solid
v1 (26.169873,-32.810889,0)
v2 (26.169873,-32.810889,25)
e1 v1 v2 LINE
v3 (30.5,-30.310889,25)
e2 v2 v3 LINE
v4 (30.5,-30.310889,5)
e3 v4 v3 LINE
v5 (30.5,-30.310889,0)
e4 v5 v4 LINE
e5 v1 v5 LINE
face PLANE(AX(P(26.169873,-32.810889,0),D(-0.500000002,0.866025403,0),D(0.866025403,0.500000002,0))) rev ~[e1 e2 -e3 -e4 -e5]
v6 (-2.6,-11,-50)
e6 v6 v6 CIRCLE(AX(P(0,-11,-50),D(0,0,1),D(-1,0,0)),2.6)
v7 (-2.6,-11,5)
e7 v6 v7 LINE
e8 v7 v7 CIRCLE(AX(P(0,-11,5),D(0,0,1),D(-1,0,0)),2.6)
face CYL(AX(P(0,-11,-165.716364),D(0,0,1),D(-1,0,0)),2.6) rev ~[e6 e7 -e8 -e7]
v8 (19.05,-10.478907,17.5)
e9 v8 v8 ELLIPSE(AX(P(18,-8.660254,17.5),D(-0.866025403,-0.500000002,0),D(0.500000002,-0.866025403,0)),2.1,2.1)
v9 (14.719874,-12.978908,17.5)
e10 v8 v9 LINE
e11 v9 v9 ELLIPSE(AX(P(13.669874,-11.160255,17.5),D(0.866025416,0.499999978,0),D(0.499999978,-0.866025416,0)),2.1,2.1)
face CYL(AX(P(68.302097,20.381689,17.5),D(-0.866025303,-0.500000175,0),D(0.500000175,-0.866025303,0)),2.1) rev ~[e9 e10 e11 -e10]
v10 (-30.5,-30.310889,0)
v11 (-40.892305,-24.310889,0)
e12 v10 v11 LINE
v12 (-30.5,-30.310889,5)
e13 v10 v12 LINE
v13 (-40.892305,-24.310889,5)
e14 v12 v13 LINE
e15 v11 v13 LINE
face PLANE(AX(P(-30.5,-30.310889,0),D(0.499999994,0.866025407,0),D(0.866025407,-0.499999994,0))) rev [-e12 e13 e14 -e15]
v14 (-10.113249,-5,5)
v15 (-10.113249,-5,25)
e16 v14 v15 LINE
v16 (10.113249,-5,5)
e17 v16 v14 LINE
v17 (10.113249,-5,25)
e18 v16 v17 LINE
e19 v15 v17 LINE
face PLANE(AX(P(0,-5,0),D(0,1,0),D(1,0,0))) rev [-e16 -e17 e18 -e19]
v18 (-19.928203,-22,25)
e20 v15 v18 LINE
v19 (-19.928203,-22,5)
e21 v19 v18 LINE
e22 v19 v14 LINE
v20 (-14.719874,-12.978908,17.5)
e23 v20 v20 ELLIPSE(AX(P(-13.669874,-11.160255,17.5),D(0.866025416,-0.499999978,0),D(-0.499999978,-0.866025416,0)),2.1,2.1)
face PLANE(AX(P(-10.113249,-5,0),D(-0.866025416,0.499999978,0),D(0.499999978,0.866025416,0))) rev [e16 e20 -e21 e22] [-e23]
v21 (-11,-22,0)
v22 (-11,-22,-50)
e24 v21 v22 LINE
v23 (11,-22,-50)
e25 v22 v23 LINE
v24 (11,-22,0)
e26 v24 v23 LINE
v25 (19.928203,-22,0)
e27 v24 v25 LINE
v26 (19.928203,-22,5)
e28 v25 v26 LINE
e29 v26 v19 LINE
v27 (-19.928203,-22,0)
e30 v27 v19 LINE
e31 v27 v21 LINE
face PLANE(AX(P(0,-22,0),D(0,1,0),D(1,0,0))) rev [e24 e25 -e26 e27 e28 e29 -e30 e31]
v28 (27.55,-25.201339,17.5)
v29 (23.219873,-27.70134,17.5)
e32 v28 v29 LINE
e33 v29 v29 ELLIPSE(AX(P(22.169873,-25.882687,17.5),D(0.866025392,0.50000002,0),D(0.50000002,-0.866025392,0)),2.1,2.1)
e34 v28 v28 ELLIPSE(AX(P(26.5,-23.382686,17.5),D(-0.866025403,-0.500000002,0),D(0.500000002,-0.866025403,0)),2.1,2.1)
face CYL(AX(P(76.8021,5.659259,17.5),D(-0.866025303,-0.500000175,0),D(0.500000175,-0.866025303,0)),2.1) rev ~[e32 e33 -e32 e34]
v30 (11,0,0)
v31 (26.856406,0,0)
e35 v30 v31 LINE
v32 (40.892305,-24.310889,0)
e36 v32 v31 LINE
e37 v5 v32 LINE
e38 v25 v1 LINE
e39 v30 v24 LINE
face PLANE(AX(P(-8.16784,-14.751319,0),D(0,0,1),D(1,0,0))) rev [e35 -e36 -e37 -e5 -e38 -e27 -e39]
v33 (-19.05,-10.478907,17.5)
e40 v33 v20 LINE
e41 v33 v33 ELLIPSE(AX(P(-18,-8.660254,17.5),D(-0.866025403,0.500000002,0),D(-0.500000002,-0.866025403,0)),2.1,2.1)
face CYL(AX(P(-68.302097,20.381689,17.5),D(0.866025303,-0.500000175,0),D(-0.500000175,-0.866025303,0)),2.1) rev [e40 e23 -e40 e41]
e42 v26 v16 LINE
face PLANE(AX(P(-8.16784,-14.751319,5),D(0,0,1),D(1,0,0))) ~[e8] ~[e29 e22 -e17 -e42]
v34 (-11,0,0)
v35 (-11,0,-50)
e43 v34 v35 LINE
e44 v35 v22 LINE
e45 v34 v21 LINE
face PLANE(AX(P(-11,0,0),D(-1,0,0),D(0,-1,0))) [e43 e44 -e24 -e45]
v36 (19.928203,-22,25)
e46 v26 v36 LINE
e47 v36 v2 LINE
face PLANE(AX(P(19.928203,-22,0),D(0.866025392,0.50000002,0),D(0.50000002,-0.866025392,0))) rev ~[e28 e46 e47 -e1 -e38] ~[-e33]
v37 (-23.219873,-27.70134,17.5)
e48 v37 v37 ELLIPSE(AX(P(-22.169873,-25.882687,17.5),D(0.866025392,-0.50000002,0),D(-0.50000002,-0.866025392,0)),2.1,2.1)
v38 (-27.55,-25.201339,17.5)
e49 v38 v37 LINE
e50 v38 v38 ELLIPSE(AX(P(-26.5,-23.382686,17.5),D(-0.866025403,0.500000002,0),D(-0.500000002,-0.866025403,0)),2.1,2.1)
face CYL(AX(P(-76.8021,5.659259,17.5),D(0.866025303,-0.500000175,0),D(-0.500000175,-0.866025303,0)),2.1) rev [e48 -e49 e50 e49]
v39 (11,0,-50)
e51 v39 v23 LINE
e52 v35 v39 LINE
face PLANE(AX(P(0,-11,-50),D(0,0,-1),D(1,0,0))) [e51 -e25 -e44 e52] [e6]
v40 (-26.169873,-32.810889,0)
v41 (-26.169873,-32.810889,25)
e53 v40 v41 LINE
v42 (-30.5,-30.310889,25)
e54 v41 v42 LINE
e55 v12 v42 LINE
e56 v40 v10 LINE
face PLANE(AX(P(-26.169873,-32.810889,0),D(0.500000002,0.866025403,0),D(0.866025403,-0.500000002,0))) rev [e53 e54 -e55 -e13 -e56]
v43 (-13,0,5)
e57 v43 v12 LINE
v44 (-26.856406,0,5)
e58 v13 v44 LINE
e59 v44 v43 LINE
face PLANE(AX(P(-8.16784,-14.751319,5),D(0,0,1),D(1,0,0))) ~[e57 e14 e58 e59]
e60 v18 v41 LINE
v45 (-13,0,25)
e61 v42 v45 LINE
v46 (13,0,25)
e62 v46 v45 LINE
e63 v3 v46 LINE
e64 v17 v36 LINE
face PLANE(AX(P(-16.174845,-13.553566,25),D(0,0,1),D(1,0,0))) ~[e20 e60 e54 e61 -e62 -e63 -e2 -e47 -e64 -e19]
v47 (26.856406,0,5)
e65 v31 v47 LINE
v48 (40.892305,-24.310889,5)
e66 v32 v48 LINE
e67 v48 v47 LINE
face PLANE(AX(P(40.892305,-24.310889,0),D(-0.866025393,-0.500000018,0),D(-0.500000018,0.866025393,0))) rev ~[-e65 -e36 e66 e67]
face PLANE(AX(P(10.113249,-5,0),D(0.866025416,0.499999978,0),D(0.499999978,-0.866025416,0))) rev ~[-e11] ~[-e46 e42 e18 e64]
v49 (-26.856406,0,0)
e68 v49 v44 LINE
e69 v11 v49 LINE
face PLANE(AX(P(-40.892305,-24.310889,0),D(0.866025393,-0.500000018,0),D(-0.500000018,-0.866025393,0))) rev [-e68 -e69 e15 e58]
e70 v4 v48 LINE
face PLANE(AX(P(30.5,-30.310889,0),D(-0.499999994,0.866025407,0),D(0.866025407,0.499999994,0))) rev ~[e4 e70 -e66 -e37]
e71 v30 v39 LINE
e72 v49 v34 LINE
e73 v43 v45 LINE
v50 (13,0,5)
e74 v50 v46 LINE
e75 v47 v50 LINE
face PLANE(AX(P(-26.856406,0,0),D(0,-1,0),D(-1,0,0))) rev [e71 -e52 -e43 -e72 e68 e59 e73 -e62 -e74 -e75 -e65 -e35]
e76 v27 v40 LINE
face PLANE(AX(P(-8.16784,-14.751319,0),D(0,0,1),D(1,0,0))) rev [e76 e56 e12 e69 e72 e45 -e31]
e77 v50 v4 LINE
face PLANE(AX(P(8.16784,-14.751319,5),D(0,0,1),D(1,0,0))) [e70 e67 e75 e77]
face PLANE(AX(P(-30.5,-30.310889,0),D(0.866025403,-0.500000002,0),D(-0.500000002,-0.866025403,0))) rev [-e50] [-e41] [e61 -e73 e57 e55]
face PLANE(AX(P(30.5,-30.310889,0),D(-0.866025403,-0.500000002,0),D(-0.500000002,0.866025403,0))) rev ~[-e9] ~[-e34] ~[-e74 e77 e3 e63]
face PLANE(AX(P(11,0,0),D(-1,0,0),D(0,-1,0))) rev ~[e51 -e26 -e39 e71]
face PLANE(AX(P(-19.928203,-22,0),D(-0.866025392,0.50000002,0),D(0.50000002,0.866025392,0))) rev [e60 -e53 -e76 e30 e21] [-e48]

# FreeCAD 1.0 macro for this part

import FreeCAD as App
import Part
import Sketcher
Q = App.Units.Quantity


def add_polygon(sketch, points):
    """Adds a closed chain of lines whose ends are joined by coincident constraints."""
    first, n = sketch.GeometryCount, len(points)
    for a, b in zip(points, points[1:] + points[:1]):
        sketch.addGeometry(Part.LineSegment(App.Vector(*a, 0), App.Vector(*b, 0)), False)
    for i in range(n):
        sketch.addConstraint(Sketcher.Constraint("Coincident", first + i, 2, first + (i + 1) % n, 1))

doc = App.newDocument("Part")
body = doc.addObject("PartDesign::Body", "Body")

sketch1 = doc.addObject("Sketcher::SketchObject", "Sketch")
body.addObject(sketch1)
sketch1.AttachmentSupport = (doc.XY_Plane, [""])
sketch1.MapMode = "FlatFace"
add_polygon(sketch1, [(0, -22), (19.9, -22), (26.2, -32.8), (30.5, -30.3), (40.9, -24.3), (26.9, 0), (0, 0)])
sketch1.addConstraint(Sketcher.Constraint("Horizontal", 0))
sketch1.addConstraint(Sketcher.Constraint("Horizontal", 5))
sketch1.addConstraint(Sketcher.Constraint("Vertical", 6))
sketch1.addConstraint(Sketcher.Constraint("Coincident", 5, 2, -1, 1))
sketch1.addConstraint(Sketcher.Constraint("Perpendicular", 1, 2))
sketch1.addConstraint(Sketcher.Constraint("Parallel", 2, 3))
sketch1.addConstraint(Sketcher.Constraint("Perpendicular", 3, 4))
sketch1.addConstraint(Sketcher.Constraint("DistanceY", 6, 2, 6, 1, Q("22 mm")))
sketch1.addConstraint(Sketcher.Constraint("Angle", 1, Q("-59.999999 deg")))
sketch1.addConstraint(Sketcher.Constraint("Distance", 2, Q("5 mm")))
sketch1.addConstraint(Sketcher.Constraint("Distance", 3, Q("12 mm")))
sketch1.addConstraint(Sketcher.Constraint("DistanceX", -1, 1, 2, 2, Q("30.5 mm")))
sketch1.addConstraint(Sketcher.Constraint("DistanceX", 4, 2, 3, 2, Q("14.035899 mm")))
pad1 = doc.addObject("PartDesign::Pad", "Pad")
body.addObject(pad1)
pad1.Profile = sketch1
pad1.Length = 5

sketch2 = doc.addObject("Sketcher::SketchObject", "Sketch001")
body.addObject(sketch2)
sketch2.AttachmentSupport = (doc.XY_Plane, [""])
sketch2.MapMode = "FlatFace"
add_polygon(sketch2, [(13, 0), (0, 0), (0, -5), (10.1, -5), (19.9, -22), (26.2, -32.8), (30.5, -30.3)])
sketch2.addConstraint(Sketcher.Constraint("Horizontal", 0))
sketch2.addConstraint(Sketcher.Constraint("Vertical", 1))
sketch2.addConstraint(Sketcher.Constraint("Horizontal", 2))
sketch2.addConstraint(Sketcher.Constraint("Coincident", 0, 2, -1, 1))
sketch2.addConstraint(Sketcher.Constraint("Parallel", 3, 4))
sketch2.addConstraint(Sketcher.Constraint("Perpendicular", 4, 5))
sketch2.addConstraint(Sketcher.Constraint("Perpendicular", 5, 6))
sketch2.addConstraint(Sketcher.Constraint("DistanceX", 0, 2, 0, 1, Q("13 mm")))
sketch2.addConstraint(Sketcher.Constraint("DistanceY", 1, 2, 1, 1, Q("5 mm")))
sketch2.addConstraint(Sketcher.Constraint("Angle", 3, Q("-60.000001 deg")))
sketch2.addConstraint(Sketcher.Constraint("Distance", 5, Q("5 mm")))
sketch2.addConstraint(Sketcher.Constraint("Distance", 6, Q("35 mm")))
sketch2.addConstraint(Sketcher.Constraint("DistanceY", 3, 2, -1, 1, Q("22 mm")))
pad2 = doc.addObject("PartDesign::Pad", "Pad001")
body.addObject(pad2)
pad2.Profile = sketch2
pad2.Length = 25

sketch3 = doc.addObject("Sketcher::SketchObject", "Sketch002")
body.addObject(sketch3)
sketch3.Placement = App.Placement(App.Vector(9.749999, 5.629167, 0), App.Rotation(App.Vector(-0.500000175, 0.866025303, 0), App.Vector(0, 0, 1), App.Vector(0.866025303, 0.500000175, 0), "ZXY"))
sketch3.addGeometry(Part.Circle(App.Vector(-33.5, 17.5, 0), App.Vector(0, 0, 1), 2.1), False)
sketch3.addGeometry(Part.Circle(App.Vector(-16.5, 17.5, 0), App.Vector(0, 0, 1), 2.1), False)
sketch3.addConstraint(Sketcher.Constraint("Equal", 0, 1))
sketch3.addConstraint(Sketcher.Constraint("Horizontal", 0, 3, 1, 3))
sketch3.addConstraint(Sketcher.Constraint("Diameter", 0, Q("4.2 mm")))
sketch3.addConstraint(Sketcher.Constraint("DistanceX", 0, 3, 1, 3, Q("17 mm")))
sketch3.addConstraint(Sketcher.Constraint("DistanceY", -1, 1, 0, 3, Q("17.5 mm")))
sketch3.addConstraint(Sketcher.Constraint("DistanceX", 0, 3, -1, 1, Q("33.500002 mm")))
doc.recompute()
hole = doc.addObject("PartDesign::Hole", "Hole")
body.addObject(hole)
hole.Profile = sketch3
hole.ThreadType = "None"
hole.Diameter = 4.2
hole.DepthType = "ThroughAll"
body2 = doc.addObject("PartDesign::Body", "Body001")
doc.recompute()

body2.BaseFeature = body
doc.recompute()

mirroring = doc.addObject("Part::Mirroring", "Mirroring")
mirroring.Source = body
mirroring.Base = App.Vector(0, 0, 0)
mirroring.Normal = App.Vector(1, 0, 0)
body3 = doc.addObject("PartDesign::Body", "Body002")
body3.BaseFeature = mirroring
boolean = doc.addObject("PartDesign::Boolean", "Boolean")
body2.addObject(boolean)
boolean.Type = "Fuse"
boolean.addObjects([body3])
doc.recompute()

sketch4 = doc.addObject("Sketcher::SketchObject", "Sketch003")
body2.addObject(sketch4)
sketch4.AttachmentSupport = (doc.getObject("XY_Plane001"), [""])
sketch4.MapMode = "FlatFace"
add_polygon(sketch4, [(-11, -22), (-11, 0), (11, 0), (11, -22)])
sketch4.addConstraint(Sketcher.Constraint("Vertical", 0))
sketch4.addConstraint(Sketcher.Constraint("Horizontal", 1))
sketch4.addConstraint(Sketcher.Constraint("Vertical", 2))
sketch4.addConstraint(Sketcher.Constraint("Horizontal", 3))
sketch4.addConstraint(Sketcher.Constraint("Symmetric", 0, 2, 1, 2, -1, 1))
sketch4.addConstraint(Sketcher.Constraint("Equal", 3, 0))
sketch4.addConstraint(Sketcher.Constraint("DistanceX", 1, 1, 1, 2, Q("22 mm")))
pad3 = doc.addObject("PartDesign::Pad", "Pad002")
body2.addObject(pad3)
pad3.Profile = sketch4
pad3.Length = 50
pad3.Reversed = True

sketch5 = doc.addObject("Sketcher::SketchObject", "Sketch004")
body2.addObject(sketch5)
sketch5.AttachmentSupport = (doc.getObject("XY_Plane001"), [""])
sketch5.MapMode = "FlatFace"
sketch5.AttachmentOffset = App.Placement(App.Vector(0, 0, -50), App.Rotation())
sketch5.addGeometry(Part.Circle(App.Vector(0, -11, 0), App.Vector(0, 0, 1), 2.6), False)
sketch5.addConstraint(Sketcher.Constraint("PointOnObject", 0, 3, -2))
sketch5.addConstraint(Sketcher.Constraint("Diameter", 0, Q("5.2 mm")))
sketch5.addConstraint(Sketcher.Constraint("DistanceY", 0, 3, -1, 1, Q("11 mm")))
doc.recompute()
hole2 = doc.addObject("PartDesign::Hole", "Hole001")
body2.addObject(hole2)
hole2.Profile = sketch5
hole2.ThreadType = "None"
hole2.Diameter = 5.2
hole2.DepthType = "ThroughAll"
hole2.Reversed = True
mirroring.Visibility = False

doc.recompute()
